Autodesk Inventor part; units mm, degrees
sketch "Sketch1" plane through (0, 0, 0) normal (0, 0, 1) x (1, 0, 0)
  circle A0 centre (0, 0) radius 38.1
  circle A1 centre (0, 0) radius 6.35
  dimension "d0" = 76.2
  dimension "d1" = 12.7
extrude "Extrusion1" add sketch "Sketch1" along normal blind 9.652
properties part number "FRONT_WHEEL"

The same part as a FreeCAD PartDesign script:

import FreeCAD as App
import Part
import Sketcher
from FreeCAD import Vector
Q = App.Units.Quantity

doc = App.newDocument("Part")
params = doc.addObject("Spreadsheet::Sheet", "Params")
for row, (alias, value) in enumerate([
    ("sketch1_diameter", "3 in"),
    ("sketch1_diameter2", "0.5 in"),
    ("pad1_length", "0.38 in"),
], start=1):
    params.set(f"A{row}", alias)
    params.set(f"B{row}", "=" + value)
    params.setAlias(f"B{row}", alias)

body = doc.addObject("PartDesign::Body", "Body")

# Sketch on XY plane
sketch1 = body.newObject("Sketcher::SketchObject", "Sketch")
sketch1.AttachmentSupport = (doc.getObject("XY_Plane"), [""])
sketch1.MapMode = "FlatFace"
sketch1.addGeometry([
    Part.Circle(Vector(0, 0, 0), Vector(0, 0, 1), 38),
    Part.Circle(Vector(0, 0, 0), Vector(0, 0, 1), 6),
], False)
sketch1.addConstraint([
    Sketcher.Constraint("Coincident", 0, 3, -1, 1),
    Sketcher.Constraint("Coincident", 1, 3, -1, 1),
    Sketcher.Constraint("Diameter", 0, Q("3 in")),
    Sketcher.Constraint("Diameter", 1, Q("0.5 in")),
])
sketch1.setExpression("Constraints[2]", "Params.sketch1_diameter")
sketch1.setExpression("Constraints[3]", "Params.sketch1_diameter2")
pad1 = body.newObject("PartDesign::Pad", "Pad")
pad1.Profile = sketch1
pad1.setExpression("Length", "Params.pad1_length")

doc.recompute()
